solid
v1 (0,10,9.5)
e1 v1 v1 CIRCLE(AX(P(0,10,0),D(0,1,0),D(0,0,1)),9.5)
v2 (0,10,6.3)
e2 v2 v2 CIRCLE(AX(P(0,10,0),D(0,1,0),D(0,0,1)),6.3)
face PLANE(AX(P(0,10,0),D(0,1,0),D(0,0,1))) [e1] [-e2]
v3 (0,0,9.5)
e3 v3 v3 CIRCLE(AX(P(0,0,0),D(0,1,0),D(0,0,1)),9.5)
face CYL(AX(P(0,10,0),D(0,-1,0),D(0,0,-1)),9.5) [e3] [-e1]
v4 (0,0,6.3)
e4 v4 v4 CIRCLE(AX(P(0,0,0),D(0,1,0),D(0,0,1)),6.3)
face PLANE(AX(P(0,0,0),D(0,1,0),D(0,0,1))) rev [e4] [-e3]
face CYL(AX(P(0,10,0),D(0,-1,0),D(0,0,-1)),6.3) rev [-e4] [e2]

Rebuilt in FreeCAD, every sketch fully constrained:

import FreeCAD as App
import Part
import Sketcher
from FreeCAD import Vector

doc = App.newDocument("Part")
params = doc.addObject("Spreadsheet::Sheet", "Params")
for row, (alias, value) in enumerate([
    ("sketch1_diameter", "19 mm"),
    ("sketch1_diameter2", "12.6 mm"),
    ("pad1_length", "10 mm"),
], start=1):
    params.set(f"A{row}", alias)
    params.set(f"B{row}", "=" + value)
    params.setAlias(f"B{row}", alias)

body = doc.addObject("PartDesign::Body", "Body")

sketch1 = body.newObject("Sketcher::SketchObject", "Sketch")
sketch1.AttachmentSupport = (doc.getObject("XZ_Plane"), [""])
sketch1.MapMode = "FlatFace"
sketch1.addGeometry(Part.Circle(Vector(0, 0, 0), Vector(0, 0, 1), 10), False)
sketch1.addGeometry(Part.Circle(Vector(0, 0, 0), Vector(0, 0, 1), 6), False)
sketch1.addConstraint(Sketcher.Constraint("Coincident", 0, 3, -1, 1))
sketch1.addConstraint(Sketcher.Constraint("Coincident", 1, 3, -1, 1))
sketch1.addConstraint(Sketcher.Constraint("Diameter", 0, 19.0))
sketch1.addConstraint(Sketcher.Constraint("Diameter", 1, 12.6))
sketch1.setExpression("Constraints[2]", "Params.sketch1_diameter")
sketch1.setExpression("Constraints[3]", "Params.sketch1_diameter2")
pad1 = body.newObject("PartDesign::Pad", "Pad")
pad1.Profile = sketch1
pad1.setExpression("Length", "Params.pad1_length")
pad1.Reversed = True

doc.recompute()
